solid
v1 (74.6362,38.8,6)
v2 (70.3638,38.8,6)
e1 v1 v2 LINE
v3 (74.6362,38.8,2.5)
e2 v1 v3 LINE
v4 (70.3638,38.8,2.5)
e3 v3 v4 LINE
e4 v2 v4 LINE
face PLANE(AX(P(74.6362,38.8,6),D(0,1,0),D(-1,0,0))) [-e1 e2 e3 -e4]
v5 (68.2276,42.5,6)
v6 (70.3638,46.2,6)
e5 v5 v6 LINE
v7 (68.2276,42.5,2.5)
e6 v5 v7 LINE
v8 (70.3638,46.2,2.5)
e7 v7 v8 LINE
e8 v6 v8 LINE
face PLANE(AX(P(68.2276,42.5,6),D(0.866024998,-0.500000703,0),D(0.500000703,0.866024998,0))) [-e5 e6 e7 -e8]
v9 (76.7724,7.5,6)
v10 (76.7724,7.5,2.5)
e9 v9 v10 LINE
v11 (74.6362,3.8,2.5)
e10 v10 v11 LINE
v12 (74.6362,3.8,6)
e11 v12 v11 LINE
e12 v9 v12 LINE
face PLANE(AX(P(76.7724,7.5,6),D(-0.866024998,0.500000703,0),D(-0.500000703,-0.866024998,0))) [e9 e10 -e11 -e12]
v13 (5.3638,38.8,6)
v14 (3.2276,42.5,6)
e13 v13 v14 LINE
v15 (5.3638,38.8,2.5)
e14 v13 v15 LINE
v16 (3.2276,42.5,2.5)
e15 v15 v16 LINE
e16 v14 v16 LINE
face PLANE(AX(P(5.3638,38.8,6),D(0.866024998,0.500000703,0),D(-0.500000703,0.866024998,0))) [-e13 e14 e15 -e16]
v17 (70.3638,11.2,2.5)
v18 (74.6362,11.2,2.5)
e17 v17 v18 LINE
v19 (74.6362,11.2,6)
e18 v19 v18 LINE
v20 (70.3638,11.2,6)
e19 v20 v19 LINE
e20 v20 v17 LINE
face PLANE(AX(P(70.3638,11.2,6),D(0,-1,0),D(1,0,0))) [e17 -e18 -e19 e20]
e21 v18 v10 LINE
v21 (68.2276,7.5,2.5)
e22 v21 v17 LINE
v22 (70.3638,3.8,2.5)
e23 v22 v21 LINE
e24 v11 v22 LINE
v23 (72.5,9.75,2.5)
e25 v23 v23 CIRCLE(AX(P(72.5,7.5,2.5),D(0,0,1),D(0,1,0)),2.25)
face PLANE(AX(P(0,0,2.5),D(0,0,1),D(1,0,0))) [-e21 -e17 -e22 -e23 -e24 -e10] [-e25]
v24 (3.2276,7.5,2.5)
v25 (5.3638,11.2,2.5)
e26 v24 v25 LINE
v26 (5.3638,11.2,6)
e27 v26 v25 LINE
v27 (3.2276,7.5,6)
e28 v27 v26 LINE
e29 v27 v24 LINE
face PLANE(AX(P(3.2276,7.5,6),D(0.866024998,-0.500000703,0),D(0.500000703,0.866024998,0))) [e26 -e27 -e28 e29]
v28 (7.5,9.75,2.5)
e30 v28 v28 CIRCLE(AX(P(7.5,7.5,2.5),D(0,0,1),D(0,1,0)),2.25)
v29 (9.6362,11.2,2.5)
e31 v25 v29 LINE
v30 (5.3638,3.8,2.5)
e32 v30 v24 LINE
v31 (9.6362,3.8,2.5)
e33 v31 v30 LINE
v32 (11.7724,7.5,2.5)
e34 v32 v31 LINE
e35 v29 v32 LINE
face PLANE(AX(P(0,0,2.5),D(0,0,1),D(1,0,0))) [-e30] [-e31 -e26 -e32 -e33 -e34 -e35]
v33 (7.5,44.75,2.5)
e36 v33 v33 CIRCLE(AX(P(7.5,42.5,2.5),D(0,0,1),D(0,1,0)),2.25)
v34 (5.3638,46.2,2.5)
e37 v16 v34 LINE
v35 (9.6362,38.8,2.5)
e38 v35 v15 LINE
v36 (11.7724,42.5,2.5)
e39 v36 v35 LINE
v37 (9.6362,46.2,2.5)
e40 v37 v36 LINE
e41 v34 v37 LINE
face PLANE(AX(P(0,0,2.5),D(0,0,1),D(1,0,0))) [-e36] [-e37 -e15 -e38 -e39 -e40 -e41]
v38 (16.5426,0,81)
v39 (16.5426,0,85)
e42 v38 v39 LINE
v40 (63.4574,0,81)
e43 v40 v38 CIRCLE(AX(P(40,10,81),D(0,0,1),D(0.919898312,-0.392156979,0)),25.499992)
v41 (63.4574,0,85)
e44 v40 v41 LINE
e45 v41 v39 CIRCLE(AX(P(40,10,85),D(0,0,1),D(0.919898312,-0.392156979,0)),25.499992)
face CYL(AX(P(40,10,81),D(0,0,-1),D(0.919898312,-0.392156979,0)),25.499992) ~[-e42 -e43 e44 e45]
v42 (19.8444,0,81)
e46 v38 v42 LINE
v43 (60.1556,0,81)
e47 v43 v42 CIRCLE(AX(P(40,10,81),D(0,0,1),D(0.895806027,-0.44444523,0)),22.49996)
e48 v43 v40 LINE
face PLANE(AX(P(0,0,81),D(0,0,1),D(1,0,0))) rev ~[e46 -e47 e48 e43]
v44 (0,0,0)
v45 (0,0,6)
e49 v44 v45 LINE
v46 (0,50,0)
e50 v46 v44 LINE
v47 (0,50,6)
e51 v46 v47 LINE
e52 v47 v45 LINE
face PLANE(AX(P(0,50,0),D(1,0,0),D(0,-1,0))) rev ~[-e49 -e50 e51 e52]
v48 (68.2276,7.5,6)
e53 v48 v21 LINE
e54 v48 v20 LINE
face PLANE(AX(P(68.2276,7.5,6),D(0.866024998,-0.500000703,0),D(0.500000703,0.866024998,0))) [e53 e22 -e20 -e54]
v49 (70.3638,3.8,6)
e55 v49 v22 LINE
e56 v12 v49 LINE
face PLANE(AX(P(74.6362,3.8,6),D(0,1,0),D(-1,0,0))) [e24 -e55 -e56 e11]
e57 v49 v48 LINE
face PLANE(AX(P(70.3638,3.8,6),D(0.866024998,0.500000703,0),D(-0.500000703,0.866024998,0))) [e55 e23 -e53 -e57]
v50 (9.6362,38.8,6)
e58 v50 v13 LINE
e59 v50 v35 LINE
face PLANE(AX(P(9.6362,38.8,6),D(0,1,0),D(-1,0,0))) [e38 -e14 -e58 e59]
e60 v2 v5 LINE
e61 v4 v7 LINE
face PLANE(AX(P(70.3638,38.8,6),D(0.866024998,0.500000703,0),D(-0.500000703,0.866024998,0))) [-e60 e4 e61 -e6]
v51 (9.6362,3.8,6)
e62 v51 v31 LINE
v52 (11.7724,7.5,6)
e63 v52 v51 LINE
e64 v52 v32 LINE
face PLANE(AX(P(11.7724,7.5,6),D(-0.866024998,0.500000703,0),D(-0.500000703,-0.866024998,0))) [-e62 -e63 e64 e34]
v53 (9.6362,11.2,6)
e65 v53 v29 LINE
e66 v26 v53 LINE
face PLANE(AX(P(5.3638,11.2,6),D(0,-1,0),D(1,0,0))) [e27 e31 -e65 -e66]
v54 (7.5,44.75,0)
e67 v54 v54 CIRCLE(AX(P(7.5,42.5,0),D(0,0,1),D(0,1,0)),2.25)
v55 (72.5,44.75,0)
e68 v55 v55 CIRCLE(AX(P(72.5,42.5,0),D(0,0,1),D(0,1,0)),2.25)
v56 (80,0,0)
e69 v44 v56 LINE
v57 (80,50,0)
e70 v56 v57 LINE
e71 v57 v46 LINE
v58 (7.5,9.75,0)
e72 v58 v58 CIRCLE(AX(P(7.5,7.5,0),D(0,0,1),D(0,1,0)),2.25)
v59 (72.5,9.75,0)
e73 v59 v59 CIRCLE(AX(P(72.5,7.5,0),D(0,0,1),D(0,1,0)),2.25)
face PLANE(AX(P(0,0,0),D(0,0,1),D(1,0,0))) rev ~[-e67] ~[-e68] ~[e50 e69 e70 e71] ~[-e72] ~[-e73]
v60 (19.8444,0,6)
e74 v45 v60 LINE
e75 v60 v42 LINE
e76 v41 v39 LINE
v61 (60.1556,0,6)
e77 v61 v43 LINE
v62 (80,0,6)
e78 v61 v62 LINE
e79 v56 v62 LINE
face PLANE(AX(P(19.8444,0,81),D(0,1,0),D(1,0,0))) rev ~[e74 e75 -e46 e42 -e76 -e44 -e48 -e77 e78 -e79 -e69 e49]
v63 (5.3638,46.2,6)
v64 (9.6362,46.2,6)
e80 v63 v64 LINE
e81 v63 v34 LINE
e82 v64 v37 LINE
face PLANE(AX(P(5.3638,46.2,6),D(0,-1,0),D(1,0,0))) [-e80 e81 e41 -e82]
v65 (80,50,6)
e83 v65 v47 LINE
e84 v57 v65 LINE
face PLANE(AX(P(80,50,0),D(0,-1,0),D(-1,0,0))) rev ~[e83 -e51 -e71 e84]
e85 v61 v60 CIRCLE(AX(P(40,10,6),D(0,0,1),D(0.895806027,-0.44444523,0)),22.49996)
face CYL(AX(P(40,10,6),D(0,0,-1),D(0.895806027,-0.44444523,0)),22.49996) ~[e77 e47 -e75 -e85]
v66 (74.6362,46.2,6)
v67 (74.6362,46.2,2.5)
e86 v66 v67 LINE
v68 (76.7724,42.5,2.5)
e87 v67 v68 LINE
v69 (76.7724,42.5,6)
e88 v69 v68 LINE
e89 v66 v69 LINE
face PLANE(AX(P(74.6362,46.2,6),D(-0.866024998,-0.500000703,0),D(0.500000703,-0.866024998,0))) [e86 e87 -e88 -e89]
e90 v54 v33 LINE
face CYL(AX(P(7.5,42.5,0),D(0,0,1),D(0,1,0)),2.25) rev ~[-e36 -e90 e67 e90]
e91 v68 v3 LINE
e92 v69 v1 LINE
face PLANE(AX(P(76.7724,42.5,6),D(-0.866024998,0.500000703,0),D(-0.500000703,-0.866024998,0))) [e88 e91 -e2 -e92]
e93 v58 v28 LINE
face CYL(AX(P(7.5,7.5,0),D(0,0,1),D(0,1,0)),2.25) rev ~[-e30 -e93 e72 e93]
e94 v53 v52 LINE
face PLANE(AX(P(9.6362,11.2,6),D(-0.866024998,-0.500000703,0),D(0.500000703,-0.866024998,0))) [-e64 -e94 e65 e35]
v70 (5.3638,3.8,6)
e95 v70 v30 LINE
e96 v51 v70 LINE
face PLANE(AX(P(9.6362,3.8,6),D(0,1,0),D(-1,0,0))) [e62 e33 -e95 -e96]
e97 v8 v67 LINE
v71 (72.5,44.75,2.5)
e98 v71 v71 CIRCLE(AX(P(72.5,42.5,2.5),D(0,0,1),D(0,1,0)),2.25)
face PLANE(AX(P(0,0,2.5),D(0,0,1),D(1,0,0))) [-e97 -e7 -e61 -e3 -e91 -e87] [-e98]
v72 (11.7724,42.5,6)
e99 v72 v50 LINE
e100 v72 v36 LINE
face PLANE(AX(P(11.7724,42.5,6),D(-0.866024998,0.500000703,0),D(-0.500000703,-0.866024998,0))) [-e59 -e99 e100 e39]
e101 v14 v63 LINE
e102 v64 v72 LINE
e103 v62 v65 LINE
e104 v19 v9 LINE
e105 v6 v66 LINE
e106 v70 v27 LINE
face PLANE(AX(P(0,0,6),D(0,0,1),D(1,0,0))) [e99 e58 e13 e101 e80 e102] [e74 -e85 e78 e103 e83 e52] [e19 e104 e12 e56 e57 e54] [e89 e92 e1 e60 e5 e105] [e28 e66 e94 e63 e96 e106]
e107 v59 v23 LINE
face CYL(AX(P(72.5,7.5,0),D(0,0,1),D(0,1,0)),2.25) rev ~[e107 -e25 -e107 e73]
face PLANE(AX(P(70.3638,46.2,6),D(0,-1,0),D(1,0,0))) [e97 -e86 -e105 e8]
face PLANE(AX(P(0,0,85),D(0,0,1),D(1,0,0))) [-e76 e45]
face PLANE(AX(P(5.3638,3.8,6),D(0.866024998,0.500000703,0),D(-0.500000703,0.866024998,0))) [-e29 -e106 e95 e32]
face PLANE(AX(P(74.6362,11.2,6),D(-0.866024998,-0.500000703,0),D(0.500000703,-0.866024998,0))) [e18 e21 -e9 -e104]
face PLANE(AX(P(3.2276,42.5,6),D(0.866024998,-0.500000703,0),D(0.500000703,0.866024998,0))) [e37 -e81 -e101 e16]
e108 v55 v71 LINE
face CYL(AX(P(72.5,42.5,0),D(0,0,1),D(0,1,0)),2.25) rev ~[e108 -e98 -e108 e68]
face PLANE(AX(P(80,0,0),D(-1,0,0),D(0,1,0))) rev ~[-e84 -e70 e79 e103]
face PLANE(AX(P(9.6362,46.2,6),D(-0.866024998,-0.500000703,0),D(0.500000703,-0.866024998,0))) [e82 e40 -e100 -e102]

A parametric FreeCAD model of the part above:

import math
import FreeCAD as App
import Part
import Sketcher
from FreeCAD import Vector
Q = App.Units.Quantity


def add_polygon(sketch, points):
    """Adds a closed chain of lines whose ends are joined by coincident constraints."""
    first, n = sketch.GeometryCount, len(points)
    for a, b in zip(points, points[1:] + points[:1]):
        sketch.addGeometry(Part.LineSegment(App.Vector(*a, 0), App.Vector(*b, 0)), False)
    for i in range(n):
        sketch.addConstraint(Sketcher.Constraint("Coincident", first + i, 2, first + (i + 1) % n, 1))

doc = App.newDocument("Part")
params = doc.addObject("Spreadsheet::Sheet", "Params")
for row, (alias, value) in enumerate([
    ("sketch1_width", "80 mm"),
    ("sketch1_height", "50 mm"),
    ("pad1_length", "6 mm"),
    ("sketch2_radius", "22.5 mm"),
    ("pad2_length", "75 mm"),
    ("sketch3_radius", "25.5 mm"),
    ("pad3_length", "4 mm"),
    ("sketch4_diameter", "4.5 mm"),
    ("hole_diameter", "4.5 mm"),
    ("sketch5_diameter", "4.5 mm"),
    ("pocket1_length", "3.5 mm"),
], start=1):
    params.set(f"A{row}", alias)
    params.set(f"B{row}", "=" + value)
    params.setAlias(f"B{row}", alias)

body = doc.addObject("PartDesign::Body", "Body")

# Sketch on XY plane
sketch1 = doc.addObject("Sketcher::SketchObject", "Sketch")
body.addObject(sketch1)
sketch1.AttachmentSupport = (doc.XY_Plane, [""])
sketch1.MapMode = "FlatFace"
add_polygon(sketch1, [(0, 50), (0, 0), (80, 0), (80, 50)])  # lines 0-3
sketch1.addConstraint(Sketcher.Constraint("Vertical", 0))
sketch1.addConstraint(Sketcher.Constraint("Horizontal", 1))
sketch1.addConstraint(Sketcher.Constraint("Vertical", 2))
sketch1.addConstraint(Sketcher.Constraint("Horizontal", 3))
sketch1.addConstraint(Sketcher.Constraint("Coincident", 0, 2, -1, 1))
sketch1.addConstraint(Sketcher.Constraint("DistanceX", 1, 1, 1, 2, 80.0))
sketch1.addConstraint(Sketcher.Constraint("DistanceY", 0, 2, 0, 1, 50.0))
sketch1.setExpression("Constraints[9]", "Params.sketch1_width")
sketch1.setExpression("Constraints[10]", "Params.sketch1_height")
pad1 = doc.addObject("PartDesign::Pad", "Pad")
body.addObject(pad1)
pad1.Profile = sketch1
pad1.setExpression("Length", "Params.pad1_length")

# Sketch on XY plane
sketch2 = doc.addObject("Sketcher::SketchObject", "Sketch001")
body.addObject(sketch2)
sketch2.AttachmentSupport = (doc.XY_Plane, [""])
sketch2.MapMode = "FlatFace"
sketch2.AttachmentOffset = App.Placement(Vector(0, 0, 6), App.Rotation())
sketch2.addGeometry(Part.LineSegment(Vector(20, 0, 0), Vector(60, 0, 0)), False)
sketch2.addGeometry(Part.ArcOfCircle(Part.Circle(Vector(40, 10, 0), Vector(0, 0, 1), 22), math.radians(-26), math.radians(206)), False)
sketch2.addConstraint(Sketcher.Constraint("Coincident", 0, 1, 1, 2))
sketch2.addConstraint(Sketcher.Constraint("Coincident", 1, 1, 0, 2))
sketch2.addConstraint(Sketcher.Constraint("Horizontal", 0))
sketch2.addConstraint(Sketcher.Constraint("PointOnObject", 0, 1, -1))
sketch2.addConstraint(Sketcher.Constraint("Radius", 1, 22.5))
sketch2.addConstraint(Sketcher.Constraint("DistanceX", -1, 1, 1, 3, 40.0))
sketch2.addConstraint(Sketcher.Constraint("DistanceY", -1, 1, 1, 3, 10.0))
sketch2.setExpression("Constraints[4]", "Params.sketch2_radius")
pad2 = doc.addObject("PartDesign::Pad", "Pad001")
body.addObject(pad2)
pad2.Profile = sketch2
pad2.setExpression("Length", "Params.pad2_length")

# Sketch on XY plane
sketch3 = doc.addObject("Sketcher::SketchObject", "Sketch002")
body.addObject(sketch3)
sketch3.AttachmentSupport = (doc.XY_Plane, [""])
sketch3.MapMode = "FlatFace"
sketch3.AttachmentOffset = App.Placement(Vector(0, 0, 81), App.Rotation())
sketch3.addGeometry(Part.ArcOfCircle(Part.Circle(Vector(40, 10, 0), Vector(0, 0, 1), 25), math.radians(-23), math.radians(203)), False)
sketch3.addGeometry(Part.LineSegment(Vector(17, 0, 0), Vector(63, 0, 0)), False)
sketch3.addConstraint(Sketcher.Constraint("Coincident", 0, 1, 1, 2))
sketch3.addConstraint(Sketcher.Constraint("Coincident", 1, 1, 0, 2))
sketch3.addConstraint(Sketcher.Constraint("Horizontal", 1))
sketch3.addConstraint(Sketcher.Constraint("PointOnObject", 0, 1, -1))
sketch3.addConstraint(Sketcher.Constraint("Radius", 0, 25.5))
sketch3.addConstraint(Sketcher.Constraint("DistanceX", -1, 1, 0, 3, 40.0))
sketch3.addConstraint(Sketcher.Constraint("DistanceY", -1, 1, 0, 3, 10.0))
sketch3.setExpression("Constraints[4]", "Params.sketch3_radius")
pad3 = doc.addObject("PartDesign::Pad", "Pad002")
body.addObject(pad3)
pad3.Profile = sketch3
pad3.setExpression("Length", "Params.pad3_length")

# Sketch on XY plane
sketch4 = doc.addObject("Sketcher::SketchObject", "Sketch003")
body.addObject(sketch4)
sketch4.AttachmentSupport = (doc.XY_Plane, [""])
sketch4.MapMode = "FlatFace"
sketch4.addGeometry(Part.Circle(Vector(72.5, 42.5, 0), Vector(0, 0, 1), 2.2), False)
sketch4.addGeometry(Part.Circle(Vector(72.5, 7.5, 0), Vector(0, 0, 1), 2.2), False)
sketch4.addGeometry(Part.Circle(Vector(7.5, 42.5, 0), Vector(0, 0, 1), 2.2), False)
sketch4.addGeometry(Part.Circle(Vector(7.5, 7.5, 0), Vector(0, 0, 1), 2.2), False)
sketch4.addConstraint(Sketcher.Constraint("Equal", 0, 1))
sketch4.addConstraint(Sketcher.Constraint("Equal", 1, 2))
sketch4.addConstraint(Sketcher.Constraint("Equal", 2, 3))
sketch4.addConstraint(Sketcher.Constraint("Horizontal", 0, 3, 2, 3))
sketch4.addConstraint(Sketcher.Constraint("Horizontal", 1, 3, 3, 3))
sketch4.addConstraint(Sketcher.Constraint("Vertical", 0, 3, 1, 3))
sketch4.addConstraint(Sketcher.Constraint("Vertical", 2, 3, 3, 3))
sketch4.addConstraint(Sketcher.Constraint("Diameter", 0, 4.5))
sketch4.addConstraint(Sketcher.Constraint("DistanceY", 1, 3, 0, 3, 35.0))
sketch4.addConstraint(Sketcher.Constraint("DistanceX", 2, 3, 0, 3, 65.0))
sketch4.addConstraint(Sketcher.Constraint("DistanceX", -1, 1, 0, 3, 72.5))
sketch4.addConstraint(Sketcher.Constraint("DistanceY", -1, 1, 0, 3, 42.5))
sketch4.setExpression("Constraints[7]", "Params.sketch4_diameter")
doc.recompute()
hole = doc.addObject("PartDesign::Hole", "Hole")
body.addObject(hole)
hole.Profile = sketch4
hole.ThreadType = "None"
hole.setExpression("Diameter", "Params.hole_diameter")
hole.DepthType = "ThroughAll"
hole.Reversed = True

# Sketch on XY plane
sketch5 = doc.addObject("Sketcher::SketchObject", "Sketch004")
body.addObject(sketch5)
sketch5.AttachmentSupport = (doc.XY_Plane, [""])
sketch5.MapMode = "FlatFace"
sketch5.AttachmentOffset = App.Placement(Vector(0, 0, 6), App.Rotation())
add_polygon(sketch5, [(9.6, 38.8), (11.8, 42.5), (9.6, 46.2), (5.4, 46.2), (3.2, 42.5), (5.4, 38.8)])  # lines 0-5
sketch5.addGeometry(Part.Circle(Vector(7.5, 42.5, 0), Vector(0, 0, 1), 2.2), False)  # 6
add_polygon(sketch5, [(9.6, 3.8), (11.8, 7.5), (9.6, 11.2), (5.4, 11.2), (3.2, 7.5), (5.4, 3.8)])  # lines 7-12
sketch5.addGeometry(Part.Circle(Vector(7.5, 7.5, 0), Vector(0, 0, 1), 2.2), False)  # 13
add_polygon(sketch5, [(74.6, 3.8), (76.8, 7.5), (74.6, 11.2), (70.4, 11.2), (68.2, 7.5), (70.4, 3.8)])  # lines 14-19
sketch5.addGeometry(Part.Circle(Vector(72.5, 7.5, 0), Vector(0, 0, 1), 2.2), False)  # 20
add_polygon(sketch5, [(74.6, 38.8), (76.8, 42.5), (74.6, 46.2), (70.4, 46.2), (68.2, 42.5), (70.4, 38.8)])  # lines 21-26
sketch5.addGeometry(Part.Circle(Vector(72.5, 42.5, 0), Vector(0, 0, 1), 2.2), False)  # 27
sketch5.addConstraint(Sketcher.Constraint("Horizontal", 2))
sketch5.addConstraint(Sketcher.Constraint("Horizontal", 5))
sketch5.addConstraint(Sketcher.Constraint("Horizontal", 9))
sketch5.addConstraint(Sketcher.Constraint("Horizontal", 12))
sketch5.addConstraint(Sketcher.Constraint("Horizontal", 16))
sketch5.addConstraint(Sketcher.Constraint("Horizontal", 19))
sketch5.addConstraint(Sketcher.Constraint("Horizontal", 23))
sketch5.addConstraint(Sketcher.Constraint("Horizontal", 26))
sketch5.addConstraint(Sketcher.Constraint("Equal", 6, 13))
sketch5.addConstraint(Sketcher.Constraint("Equal", 13, 20))
sketch5.addConstraint(Sketcher.Constraint("Equal", 20, 27))
sketch5.addConstraint(Sketcher.Constraint("Parallel", 0, 3))
sketch5.addConstraint(Sketcher.Constraint("Parallel", 1, 4))
sketch5.addConstraint(Sketcher.Constraint("Parallel", 3, 7))
sketch5.addConstraint(Sketcher.Constraint("Parallel", 4, 8))
sketch5.addConstraint(Sketcher.Constraint("Parallel", 7, 10))
sketch5.addConstraint(Sketcher.Constraint("Parallel", 8, 11))
sketch5.addConstraint(Sketcher.Constraint("Parallel", 10, 14))
sketch5.addConstraint(Sketcher.Constraint("Parallel", 11, 15))
sketch5.addConstraint(Sketcher.Constraint("Parallel", 14, 17))
sketch5.addConstraint(Sketcher.Constraint("Parallel", 15, 18))
sketch5.addConstraint(Sketcher.Constraint("Parallel", 17, 21))
sketch5.addConstraint(Sketcher.Constraint("Parallel", 18, 22))
sketch5.addConstraint(Sketcher.Constraint("Parallel", 21, 24))
sketch5.addConstraint(Sketcher.Constraint("Parallel", 22, 25))
sketch5.addConstraint(Sketcher.Constraint("Horizontal", 13, 3, 20, 3))
sketch5.addConstraint(Sketcher.Constraint("Horizontal", 6, 3, 27, 3))
sketch5.addConstraint(Sketcher.Constraint("Horizontal", 27, 3, 0, 2))
sketch5.addConstraint(Sketcher.Constraint("Horizontal", 0, 2, 3, 2))
sketch5.addConstraint(Sketcher.Constraint("Horizontal", 20, 3, 7, 2))
sketch5.addConstraint(Sketcher.Constraint("Horizontal", 7, 2, 10, 2))
sketch5.addConstraint(Sketcher.Constraint("Horizontal", 10, 2, 14, 2))
sketch5.addConstraint(Sketcher.Constraint("Horizontal", 9, 2, 15, 2))
sketch5.addConstraint(Sketcher.Constraint("Horizontal", 14, 2, 17, 2))
sketch5.addConstraint(Sketcher.Constraint("Horizontal", 12, 2, 18, 2))
sketch5.addConstraint(Sketcher.Constraint("Horizontal", 3, 2, 21, 2))
sketch5.addConstraint(Sketcher.Constraint("Horizontal", 2, 2, 22, 2))
sketch5.addConstraint(Sketcher.Constraint("Horizontal", 21, 2, 24, 2))
sketch5.addConstraint(Sketcher.Constraint("Horizontal", 5, 2, 25, 2))
sketch5.addConstraint(Sketcher.Constraint("Vertical", 6, 3, 13, 3))
sketch5.addConstraint(Sketcher.Constraint("Vertical", 20, 3, 27, 3))
sketch5.addConstraint(Sketcher.Constraint("Vertical", 2, 2, 4, 2))
sketch5.addConstraint(Sketcher.Constraint("Vertical", 1, 2, 5, 2))
sketch5.addConstraint(Sketcher.Constraint("Vertical", 0, 2, 7, 2))
sketch5.addConstraint(Sketcher.Constraint("Vertical", 5, 2, 8, 2))
sketch5.addConstraint(Sketcher.Constraint("Vertical", 4, 2, 9, 2))
sketch5.addConstraint(Sketcher.Constraint("Vertical", 9, 2, 11, 2))
sketch5.addConstraint(Sketcher.Constraint("Vertical", 14, 2, 21, 2))
sketch5.addConstraint(Sketcher.Constraint("Vertical", 18, 2, 23, 2))
sketch5.addConstraint(Sketcher.Constraint("Equal", 12, 16))
sketch5.addConstraint(Sketcher.Constraint("Diameter", 6, 4.5))
sketch5.addConstraint(Sketcher.Constraint("DistanceY", 4, 2, 2, 2, 7.4))
sketch5.addConstraint(Sketcher.Constraint("Angle", 0, Q("60 deg")))
sketch5.addConstraint(Sketcher.Constraint("DistanceY", 13, 3, 6, 3, 35.0))
sketch5.addConstraint(Sketcher.Constraint("DistanceX", 13, 3, 20, 3, 65.0))
sketch5.addConstraint(Sketcher.Constraint("DistanceX", 7, 2, 14, 2, 65.0))
sketch5.addConstraint(Sketcher.Constraint("DistanceX", -1, 1, 6, 3, 7.5))
sketch5.addConstraint(Sketcher.Constraint("DistanceY", -1, 1, 6, 3, 42.5))
sketch5.addConstraint(Sketcher.Constraint("DistanceX", 2, 2, 2, 1, 4.2724))
sketch5.addConstraint(Sketcher.Constraint("DistanceX", -1, 1, 0, 2, 11.7724))
sketch5.setExpression("Constraints[74]", "Params.sketch5_diameter")
pocket1 = doc.addObject("PartDesign::Pocket", "Pocket")
body.addObject(pocket1)
pocket1.Profile = sketch5
pocket1.setExpression("Length", "Params.pocket1_length")

doc.recompute()
